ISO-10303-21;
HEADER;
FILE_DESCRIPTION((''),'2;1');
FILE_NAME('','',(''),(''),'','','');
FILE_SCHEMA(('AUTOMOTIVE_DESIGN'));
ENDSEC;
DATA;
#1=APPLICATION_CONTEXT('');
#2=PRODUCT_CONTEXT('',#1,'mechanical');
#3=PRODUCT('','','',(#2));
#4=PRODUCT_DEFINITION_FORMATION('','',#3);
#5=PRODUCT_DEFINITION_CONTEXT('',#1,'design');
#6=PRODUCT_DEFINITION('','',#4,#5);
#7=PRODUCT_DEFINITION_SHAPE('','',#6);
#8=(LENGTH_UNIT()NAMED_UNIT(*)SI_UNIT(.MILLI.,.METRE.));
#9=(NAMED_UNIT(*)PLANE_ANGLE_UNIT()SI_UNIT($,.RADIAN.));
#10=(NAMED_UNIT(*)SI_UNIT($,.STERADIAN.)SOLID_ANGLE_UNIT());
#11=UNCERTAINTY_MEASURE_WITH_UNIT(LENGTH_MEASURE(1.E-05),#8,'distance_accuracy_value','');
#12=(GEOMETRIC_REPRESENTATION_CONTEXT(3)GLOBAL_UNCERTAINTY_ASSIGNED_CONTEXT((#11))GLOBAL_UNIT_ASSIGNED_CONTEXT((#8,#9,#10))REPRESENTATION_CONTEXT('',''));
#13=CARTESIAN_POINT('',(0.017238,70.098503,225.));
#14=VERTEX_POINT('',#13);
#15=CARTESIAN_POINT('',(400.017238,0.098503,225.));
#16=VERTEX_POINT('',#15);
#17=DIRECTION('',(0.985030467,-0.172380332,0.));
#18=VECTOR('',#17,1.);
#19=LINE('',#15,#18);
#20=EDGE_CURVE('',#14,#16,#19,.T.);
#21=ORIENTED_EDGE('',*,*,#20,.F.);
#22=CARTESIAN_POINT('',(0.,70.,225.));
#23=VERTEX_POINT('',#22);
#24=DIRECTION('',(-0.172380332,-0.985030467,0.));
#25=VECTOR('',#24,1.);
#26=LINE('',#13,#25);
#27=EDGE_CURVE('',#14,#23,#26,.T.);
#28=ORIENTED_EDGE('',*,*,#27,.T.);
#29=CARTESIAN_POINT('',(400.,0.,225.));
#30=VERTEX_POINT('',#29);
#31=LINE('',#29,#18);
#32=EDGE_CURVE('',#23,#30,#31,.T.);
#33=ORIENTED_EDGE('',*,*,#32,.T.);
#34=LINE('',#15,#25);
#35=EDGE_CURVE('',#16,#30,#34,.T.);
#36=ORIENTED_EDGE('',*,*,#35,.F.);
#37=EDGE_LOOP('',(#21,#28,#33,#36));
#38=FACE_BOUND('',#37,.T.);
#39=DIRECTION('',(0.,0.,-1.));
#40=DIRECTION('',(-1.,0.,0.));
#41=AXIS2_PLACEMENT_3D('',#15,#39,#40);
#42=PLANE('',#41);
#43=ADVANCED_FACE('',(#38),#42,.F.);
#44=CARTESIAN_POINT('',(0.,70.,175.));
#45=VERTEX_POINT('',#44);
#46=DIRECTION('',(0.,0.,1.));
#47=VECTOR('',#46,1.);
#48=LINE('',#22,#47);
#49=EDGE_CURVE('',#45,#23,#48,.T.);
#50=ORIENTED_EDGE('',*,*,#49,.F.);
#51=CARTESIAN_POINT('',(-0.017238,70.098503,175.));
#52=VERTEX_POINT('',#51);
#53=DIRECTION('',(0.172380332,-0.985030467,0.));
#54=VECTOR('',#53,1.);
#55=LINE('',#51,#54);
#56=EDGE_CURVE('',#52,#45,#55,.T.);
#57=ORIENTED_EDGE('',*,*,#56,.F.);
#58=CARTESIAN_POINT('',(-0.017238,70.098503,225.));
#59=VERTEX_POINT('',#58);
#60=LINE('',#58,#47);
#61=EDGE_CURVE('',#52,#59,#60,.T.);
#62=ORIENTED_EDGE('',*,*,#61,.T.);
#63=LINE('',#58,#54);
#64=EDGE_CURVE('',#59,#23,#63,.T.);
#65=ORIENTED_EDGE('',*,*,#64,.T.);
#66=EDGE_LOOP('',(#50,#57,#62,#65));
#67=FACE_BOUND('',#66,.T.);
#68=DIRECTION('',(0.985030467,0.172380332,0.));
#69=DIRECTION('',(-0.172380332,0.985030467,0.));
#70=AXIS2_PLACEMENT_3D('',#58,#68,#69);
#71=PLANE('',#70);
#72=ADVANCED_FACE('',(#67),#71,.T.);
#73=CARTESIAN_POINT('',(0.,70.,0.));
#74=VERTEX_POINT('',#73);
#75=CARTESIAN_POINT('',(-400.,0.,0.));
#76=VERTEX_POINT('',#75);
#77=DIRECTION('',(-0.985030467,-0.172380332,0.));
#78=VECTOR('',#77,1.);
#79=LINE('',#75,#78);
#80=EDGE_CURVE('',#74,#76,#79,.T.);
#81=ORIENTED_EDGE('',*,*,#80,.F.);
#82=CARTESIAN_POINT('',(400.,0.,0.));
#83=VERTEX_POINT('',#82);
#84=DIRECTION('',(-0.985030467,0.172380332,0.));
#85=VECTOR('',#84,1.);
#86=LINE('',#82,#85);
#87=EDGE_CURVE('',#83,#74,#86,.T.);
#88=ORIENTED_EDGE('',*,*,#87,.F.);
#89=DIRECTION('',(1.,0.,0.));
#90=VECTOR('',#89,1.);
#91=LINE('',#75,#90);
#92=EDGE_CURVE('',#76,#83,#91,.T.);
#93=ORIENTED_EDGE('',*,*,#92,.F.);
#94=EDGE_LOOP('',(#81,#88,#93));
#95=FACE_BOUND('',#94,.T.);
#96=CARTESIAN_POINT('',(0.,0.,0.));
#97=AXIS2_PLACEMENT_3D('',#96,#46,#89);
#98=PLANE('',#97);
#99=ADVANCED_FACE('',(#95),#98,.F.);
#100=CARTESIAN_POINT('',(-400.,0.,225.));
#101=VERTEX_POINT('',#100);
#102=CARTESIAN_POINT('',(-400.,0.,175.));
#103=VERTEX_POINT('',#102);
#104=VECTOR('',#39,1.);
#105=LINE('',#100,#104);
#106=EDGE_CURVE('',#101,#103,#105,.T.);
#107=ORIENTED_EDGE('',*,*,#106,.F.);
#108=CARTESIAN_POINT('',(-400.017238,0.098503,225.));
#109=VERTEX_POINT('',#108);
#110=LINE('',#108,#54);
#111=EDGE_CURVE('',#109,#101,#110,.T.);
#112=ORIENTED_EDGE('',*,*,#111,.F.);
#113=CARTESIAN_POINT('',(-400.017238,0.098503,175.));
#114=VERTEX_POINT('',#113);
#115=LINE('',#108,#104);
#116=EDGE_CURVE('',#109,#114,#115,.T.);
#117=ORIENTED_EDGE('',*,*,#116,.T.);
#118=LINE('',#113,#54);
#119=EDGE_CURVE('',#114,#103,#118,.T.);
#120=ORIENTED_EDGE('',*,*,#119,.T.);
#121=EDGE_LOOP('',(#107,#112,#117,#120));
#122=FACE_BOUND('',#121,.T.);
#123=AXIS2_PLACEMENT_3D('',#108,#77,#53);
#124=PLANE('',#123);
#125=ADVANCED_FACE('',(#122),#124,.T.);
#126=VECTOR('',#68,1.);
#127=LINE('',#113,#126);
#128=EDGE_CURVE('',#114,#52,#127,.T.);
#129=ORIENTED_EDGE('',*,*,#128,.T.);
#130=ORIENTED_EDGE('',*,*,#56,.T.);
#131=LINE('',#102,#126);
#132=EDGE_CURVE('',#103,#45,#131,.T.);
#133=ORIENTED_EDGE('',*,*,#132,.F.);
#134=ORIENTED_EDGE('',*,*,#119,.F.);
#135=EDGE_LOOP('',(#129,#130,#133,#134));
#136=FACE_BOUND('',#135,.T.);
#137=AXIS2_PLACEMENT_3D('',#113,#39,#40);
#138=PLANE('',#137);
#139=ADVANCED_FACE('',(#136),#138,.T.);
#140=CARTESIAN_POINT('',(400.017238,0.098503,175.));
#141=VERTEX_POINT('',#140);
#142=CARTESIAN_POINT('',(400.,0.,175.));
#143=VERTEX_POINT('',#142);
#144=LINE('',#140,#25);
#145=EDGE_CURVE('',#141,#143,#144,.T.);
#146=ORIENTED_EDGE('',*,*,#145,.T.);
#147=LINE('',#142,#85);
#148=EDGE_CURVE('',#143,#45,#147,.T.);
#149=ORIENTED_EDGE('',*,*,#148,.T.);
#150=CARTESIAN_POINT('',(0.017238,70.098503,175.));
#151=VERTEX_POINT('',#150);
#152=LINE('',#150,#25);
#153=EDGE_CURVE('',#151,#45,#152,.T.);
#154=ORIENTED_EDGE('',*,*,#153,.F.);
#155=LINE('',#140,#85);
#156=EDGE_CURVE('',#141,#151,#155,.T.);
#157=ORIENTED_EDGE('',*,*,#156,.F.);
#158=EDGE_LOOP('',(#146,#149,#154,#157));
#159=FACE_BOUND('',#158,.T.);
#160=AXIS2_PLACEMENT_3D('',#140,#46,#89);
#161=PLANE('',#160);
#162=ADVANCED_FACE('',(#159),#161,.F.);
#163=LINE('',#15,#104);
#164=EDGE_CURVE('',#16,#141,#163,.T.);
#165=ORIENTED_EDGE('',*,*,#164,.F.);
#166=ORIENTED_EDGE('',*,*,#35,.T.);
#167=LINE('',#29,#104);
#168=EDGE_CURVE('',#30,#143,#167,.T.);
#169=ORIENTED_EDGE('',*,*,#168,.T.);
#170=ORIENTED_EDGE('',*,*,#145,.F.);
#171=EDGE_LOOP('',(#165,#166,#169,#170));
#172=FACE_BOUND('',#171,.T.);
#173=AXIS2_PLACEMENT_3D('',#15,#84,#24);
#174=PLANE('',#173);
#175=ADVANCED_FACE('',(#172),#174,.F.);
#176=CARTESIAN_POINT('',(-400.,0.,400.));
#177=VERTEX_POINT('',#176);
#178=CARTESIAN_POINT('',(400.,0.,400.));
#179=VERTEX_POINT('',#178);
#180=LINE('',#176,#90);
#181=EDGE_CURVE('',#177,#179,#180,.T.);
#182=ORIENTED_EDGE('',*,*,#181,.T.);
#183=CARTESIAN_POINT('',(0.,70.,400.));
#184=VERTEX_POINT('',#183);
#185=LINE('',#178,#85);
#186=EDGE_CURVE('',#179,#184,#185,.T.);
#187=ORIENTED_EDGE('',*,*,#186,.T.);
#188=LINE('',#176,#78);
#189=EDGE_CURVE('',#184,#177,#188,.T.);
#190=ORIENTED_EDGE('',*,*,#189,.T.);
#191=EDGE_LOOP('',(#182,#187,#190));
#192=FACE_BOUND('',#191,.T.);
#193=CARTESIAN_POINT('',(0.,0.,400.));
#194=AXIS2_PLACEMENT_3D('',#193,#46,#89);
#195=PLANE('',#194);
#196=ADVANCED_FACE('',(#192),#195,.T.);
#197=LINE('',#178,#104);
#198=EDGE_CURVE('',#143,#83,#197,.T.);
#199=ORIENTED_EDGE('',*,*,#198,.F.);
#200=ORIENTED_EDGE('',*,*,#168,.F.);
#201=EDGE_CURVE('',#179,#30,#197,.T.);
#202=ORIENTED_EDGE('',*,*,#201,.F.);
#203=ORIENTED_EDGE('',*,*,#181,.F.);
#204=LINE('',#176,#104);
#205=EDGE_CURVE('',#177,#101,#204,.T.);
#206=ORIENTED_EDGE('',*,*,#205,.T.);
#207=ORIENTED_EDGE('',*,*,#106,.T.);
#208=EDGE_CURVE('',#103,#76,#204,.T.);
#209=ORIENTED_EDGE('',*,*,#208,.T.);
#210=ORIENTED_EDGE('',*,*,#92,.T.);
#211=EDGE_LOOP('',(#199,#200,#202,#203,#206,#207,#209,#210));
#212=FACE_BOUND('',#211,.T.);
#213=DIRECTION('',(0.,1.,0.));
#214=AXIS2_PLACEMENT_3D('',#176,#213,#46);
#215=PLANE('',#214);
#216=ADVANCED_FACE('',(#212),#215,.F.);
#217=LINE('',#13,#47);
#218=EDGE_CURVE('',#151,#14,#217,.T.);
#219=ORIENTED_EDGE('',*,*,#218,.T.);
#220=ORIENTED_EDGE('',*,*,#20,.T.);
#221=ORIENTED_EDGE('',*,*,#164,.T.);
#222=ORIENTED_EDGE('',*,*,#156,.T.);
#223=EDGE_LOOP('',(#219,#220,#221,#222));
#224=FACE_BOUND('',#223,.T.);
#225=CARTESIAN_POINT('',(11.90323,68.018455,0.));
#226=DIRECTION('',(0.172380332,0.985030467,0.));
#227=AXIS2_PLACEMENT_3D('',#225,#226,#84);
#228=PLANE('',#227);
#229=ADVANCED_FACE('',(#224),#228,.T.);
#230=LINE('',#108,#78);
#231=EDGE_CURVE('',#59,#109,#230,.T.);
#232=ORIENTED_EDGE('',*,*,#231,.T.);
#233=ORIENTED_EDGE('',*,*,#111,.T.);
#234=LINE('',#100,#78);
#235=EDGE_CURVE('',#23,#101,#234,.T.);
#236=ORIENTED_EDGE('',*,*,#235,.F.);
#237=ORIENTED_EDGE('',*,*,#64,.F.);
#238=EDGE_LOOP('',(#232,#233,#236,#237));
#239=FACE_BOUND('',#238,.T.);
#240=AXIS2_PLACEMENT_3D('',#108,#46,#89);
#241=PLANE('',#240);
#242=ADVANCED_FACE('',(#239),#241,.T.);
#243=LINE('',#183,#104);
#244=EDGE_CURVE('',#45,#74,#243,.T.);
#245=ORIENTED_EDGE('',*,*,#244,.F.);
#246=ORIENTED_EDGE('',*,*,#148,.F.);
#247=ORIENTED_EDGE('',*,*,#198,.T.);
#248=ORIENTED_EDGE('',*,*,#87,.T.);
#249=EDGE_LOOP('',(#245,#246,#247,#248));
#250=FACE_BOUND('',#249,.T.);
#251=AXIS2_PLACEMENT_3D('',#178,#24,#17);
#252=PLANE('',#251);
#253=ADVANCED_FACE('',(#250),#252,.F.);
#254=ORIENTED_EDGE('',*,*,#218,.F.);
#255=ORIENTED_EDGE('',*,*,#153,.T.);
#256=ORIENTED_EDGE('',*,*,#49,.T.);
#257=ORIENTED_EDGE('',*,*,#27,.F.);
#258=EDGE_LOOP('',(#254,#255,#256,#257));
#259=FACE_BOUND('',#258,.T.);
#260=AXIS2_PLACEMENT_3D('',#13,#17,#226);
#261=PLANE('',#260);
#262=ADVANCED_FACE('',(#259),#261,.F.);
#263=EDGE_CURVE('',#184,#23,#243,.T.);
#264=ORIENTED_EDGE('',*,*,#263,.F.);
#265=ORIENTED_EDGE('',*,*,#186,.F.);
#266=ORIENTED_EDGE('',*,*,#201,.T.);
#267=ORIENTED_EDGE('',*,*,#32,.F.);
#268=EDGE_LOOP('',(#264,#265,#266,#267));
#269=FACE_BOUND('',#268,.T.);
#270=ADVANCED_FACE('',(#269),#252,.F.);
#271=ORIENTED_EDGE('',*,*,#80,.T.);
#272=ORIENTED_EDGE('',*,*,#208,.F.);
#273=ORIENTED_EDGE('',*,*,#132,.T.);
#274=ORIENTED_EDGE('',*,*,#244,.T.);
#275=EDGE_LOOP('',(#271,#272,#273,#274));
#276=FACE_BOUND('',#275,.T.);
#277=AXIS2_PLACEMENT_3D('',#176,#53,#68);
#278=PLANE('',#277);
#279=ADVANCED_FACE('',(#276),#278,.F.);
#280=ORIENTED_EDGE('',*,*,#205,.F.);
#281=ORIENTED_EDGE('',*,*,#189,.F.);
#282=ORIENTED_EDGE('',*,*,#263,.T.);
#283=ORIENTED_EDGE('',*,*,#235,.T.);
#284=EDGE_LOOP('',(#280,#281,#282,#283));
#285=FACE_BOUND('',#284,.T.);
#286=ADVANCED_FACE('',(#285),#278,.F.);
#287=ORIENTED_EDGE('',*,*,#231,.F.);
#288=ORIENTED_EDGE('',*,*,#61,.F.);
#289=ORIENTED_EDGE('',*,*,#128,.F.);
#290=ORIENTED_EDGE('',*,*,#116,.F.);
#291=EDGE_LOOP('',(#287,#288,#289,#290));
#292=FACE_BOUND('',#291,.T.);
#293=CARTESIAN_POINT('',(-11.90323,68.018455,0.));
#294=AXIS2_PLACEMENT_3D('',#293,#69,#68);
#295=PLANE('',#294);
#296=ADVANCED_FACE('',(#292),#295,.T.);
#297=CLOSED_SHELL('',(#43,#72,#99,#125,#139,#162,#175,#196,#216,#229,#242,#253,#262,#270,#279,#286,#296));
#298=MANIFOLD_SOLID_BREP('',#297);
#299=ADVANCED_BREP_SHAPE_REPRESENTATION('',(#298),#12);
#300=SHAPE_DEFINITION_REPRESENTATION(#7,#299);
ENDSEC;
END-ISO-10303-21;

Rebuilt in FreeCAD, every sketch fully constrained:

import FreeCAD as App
import Part
import Sketcher
Q = App.Units.Quantity


def add_polygon(sketch, points):
    """Adds a closed chain of lines whose ends are joined by coincident constraints."""
    first, n = sketch.GeometryCount, len(points)
    for a, b in zip(points, points[1:] + points[:1]):
        sketch.addGeometry(Part.LineSegment(App.Vector(*a, 0), App.Vector(*b, 0)), False)
    for i in range(n):
        sketch.addConstraint(Sketcher.Constraint("Coincident", first + i, 2, first + (i + 1) % n, 1))

doc = App.newDocument("Part")
body = doc.addObject("PartDesign::Body", "Body")

sketch1 = doc.addObject("Sketcher::SketchObject", "Sketch")
body.addObject(sketch1)
sketch1.AttachmentSupport = (doc.XY_Plane, [""])
sketch1.MapMode = "FlatFace"
add_polygon(sketch1, [(-400, 0), (400, 0), (0, 70)])
sketch1.addConstraint([
    Sketcher.Constraint("Horizontal", 0),
    Sketcher.Constraint("Symmetric", 0, 2, 2, 2, -1, 1),
    Sketcher.Constraint("PointOnObject", 1, 2, -2),
    Sketcher.Constraint("DistanceX", 0, 1, 0, 2, Q("800 mm")),
    Sketcher.Constraint("DistanceY", -1, 1, 1, 2, Q("70 mm")),
])
pad1 = doc.addObject("PartDesign::Pad", "Pad")
body.addObject(pad1)
pad1.Profile = sketch1
pad1.Length = 400

sketch2 = doc.addObject("Sketcher::SketchObject", "Sketch001")
body.addObject(sketch2)
sketch2.Placement = App.Placement(App.Vector(11.885992, 67.919951, 0), App.Rotation(App.Vector(0.985030467, -0.172380332, 0), App.Vector(0, 0, -1), App.Vector(0.172380332, 0.985030467, 0), "ZXY"))
add_polygon(sketch2, [(-12.066623, -175), (-12.066623, -225), (394.012187, -225), (394.012187, -175)])
sketch2.addConstraint([
    Sketcher.Constraint("Vertical", 0),
    Sketcher.Constraint("Horizontal", 1),
    Sketcher.Constraint("Vertical", 2),
    Sketcher.Constraint("Horizontal", 3),
    Sketcher.Constraint("DistanceY", 0, 2, 0, 1, Q("50 mm")),
    Sketcher.Constraint("DistanceY", 0, 2, -1, 1, Q("225 mm")),
    Sketcher.Constraint("DistanceX", 1, 1, 1, 2, Q("406.07881 mm")),
    Sketcher.Constraint("DistanceX", 0, 2, -1, 1, Q("12.066623 mm")),
])
pad2 = doc.addObject("PartDesign::Pad", "Pad001")
body.addObject(pad2)
pad2.Profile = sketch2
pad2.Length = 0.1
doc.recompute()

mirrored = doc.addObject("PartDesign::Mirrored", "Mirrored")
body.addObject(mirrored)
mirrored.Originals = [pad2]
mirrored.MirrorPlane = (doc.YZ_Plane, [""])
body.Tip = mirrored

doc.recompute()
